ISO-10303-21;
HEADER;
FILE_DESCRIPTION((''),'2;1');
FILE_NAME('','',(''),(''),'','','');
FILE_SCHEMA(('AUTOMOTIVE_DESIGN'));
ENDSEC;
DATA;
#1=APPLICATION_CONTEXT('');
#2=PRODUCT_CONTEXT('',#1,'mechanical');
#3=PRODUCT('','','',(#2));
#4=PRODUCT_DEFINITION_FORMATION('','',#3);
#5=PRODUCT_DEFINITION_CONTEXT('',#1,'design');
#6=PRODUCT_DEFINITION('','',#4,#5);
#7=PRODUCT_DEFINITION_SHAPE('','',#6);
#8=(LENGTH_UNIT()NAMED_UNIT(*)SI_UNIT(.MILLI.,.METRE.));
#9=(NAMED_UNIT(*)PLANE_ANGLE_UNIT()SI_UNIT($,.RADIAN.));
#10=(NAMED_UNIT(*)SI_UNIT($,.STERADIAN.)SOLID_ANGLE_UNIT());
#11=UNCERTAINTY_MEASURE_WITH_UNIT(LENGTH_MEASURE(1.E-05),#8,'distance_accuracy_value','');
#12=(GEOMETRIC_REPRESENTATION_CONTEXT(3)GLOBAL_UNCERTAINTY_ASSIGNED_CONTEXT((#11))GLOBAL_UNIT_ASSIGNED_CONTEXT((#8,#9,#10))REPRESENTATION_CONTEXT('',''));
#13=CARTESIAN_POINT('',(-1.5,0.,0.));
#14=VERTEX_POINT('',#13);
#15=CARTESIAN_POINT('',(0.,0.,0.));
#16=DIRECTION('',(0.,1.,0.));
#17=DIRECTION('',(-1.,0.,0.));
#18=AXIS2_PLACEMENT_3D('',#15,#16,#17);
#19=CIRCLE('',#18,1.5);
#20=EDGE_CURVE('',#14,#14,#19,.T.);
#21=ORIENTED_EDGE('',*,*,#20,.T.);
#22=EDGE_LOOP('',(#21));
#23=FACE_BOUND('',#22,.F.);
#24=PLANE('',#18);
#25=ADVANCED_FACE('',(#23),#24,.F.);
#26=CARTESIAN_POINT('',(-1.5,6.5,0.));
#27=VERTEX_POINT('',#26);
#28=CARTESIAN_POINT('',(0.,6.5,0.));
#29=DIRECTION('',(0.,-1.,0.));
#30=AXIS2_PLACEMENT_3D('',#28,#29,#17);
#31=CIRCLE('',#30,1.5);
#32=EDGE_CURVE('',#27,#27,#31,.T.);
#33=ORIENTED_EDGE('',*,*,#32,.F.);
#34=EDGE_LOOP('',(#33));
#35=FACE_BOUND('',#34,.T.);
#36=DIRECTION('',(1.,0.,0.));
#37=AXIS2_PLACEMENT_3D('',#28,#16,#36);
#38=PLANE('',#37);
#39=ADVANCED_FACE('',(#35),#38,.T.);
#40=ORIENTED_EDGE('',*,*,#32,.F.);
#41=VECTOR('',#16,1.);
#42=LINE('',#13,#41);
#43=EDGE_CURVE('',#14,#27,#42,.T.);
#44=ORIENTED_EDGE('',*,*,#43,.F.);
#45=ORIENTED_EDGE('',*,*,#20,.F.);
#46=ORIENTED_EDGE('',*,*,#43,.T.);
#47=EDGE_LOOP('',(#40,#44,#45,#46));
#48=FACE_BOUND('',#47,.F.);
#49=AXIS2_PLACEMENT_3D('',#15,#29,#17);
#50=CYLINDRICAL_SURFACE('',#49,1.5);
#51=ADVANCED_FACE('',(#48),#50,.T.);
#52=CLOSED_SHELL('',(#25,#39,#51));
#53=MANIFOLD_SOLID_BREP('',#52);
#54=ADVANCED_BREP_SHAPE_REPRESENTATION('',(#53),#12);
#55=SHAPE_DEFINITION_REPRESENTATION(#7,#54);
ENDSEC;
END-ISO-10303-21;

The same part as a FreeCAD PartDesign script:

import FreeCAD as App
import Part
import Sketcher
from FreeCAD import Vector
Q = App.Units.Quantity

doc = App.newDocument("Part")
body = doc.addObject("PartDesign::Body", "Body")

# Sketch on XZ plane
sketch1 = body.newObject("Sketcher::SketchObject", "Sketch")
sketch1.AttachmentSupport = (doc.getObject("XZ_Plane"), [""])
sketch1.MapMode = "FlatFace"
sketch1.addGeometry(Part.Circle(Vector(0, 0, 0), Vector(0, 0, 1), 1.5), False)
sketch1.addConstraint([
    Sketcher.Constraint("Coincident", 0, 3, -1, 1),
    Sketcher.Constraint("Diameter", 0, Q("3 mm")),
])
pad1 = body.newObject("PartDesign::Pad", "Pad")
pad1.Profile = sketch1
pad1.Length = 7
pad1.Reversed = True

# Sketch on XZ plane
sketch2 = body.newObject("Sketcher::SketchObject", "Sketch001")
sketch2.AttachmentSupport = (doc.getObject("XZ_Plane"), [""])
sketch2.MapMode = "FlatFace"
sketch2.AttachmentOffset = App.Placement(Vector(0, 0, -7), App.Rotation())
sketch2.addGeometry(Part.Circle(Vector(0, 0, 0), Vector(0, 0, 1), 1.5), False)
sketch2.addConstraint([
    Sketcher.Constraint("Coincident", 0, 3, -1, 1),
    Sketcher.Constraint("Diameter", 0, Q("3 mm")),
])
pocket1 = body.newObject("PartDesign::Pocket", "Pocket")
pocket1.Profile = sketch2
pocket1.Length = 0.5
pocket1.Reversed = True

doc.recompute()
